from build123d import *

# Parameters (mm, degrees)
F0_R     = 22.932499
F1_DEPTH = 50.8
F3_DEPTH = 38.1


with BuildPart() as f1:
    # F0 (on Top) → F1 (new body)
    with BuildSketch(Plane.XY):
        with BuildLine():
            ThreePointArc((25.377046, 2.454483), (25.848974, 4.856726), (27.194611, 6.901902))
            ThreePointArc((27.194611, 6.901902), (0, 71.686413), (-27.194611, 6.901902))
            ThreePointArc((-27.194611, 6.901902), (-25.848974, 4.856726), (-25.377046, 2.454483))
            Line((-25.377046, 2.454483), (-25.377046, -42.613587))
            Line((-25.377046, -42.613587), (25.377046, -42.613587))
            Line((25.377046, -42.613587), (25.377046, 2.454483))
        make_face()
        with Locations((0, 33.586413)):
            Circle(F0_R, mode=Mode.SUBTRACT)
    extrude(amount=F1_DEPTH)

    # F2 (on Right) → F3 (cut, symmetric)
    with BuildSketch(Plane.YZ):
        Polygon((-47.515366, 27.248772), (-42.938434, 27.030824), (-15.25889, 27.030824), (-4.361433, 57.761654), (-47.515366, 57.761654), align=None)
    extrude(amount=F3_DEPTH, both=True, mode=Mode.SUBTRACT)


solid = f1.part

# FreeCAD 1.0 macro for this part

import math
import FreeCAD as App
import Part
import Sketcher
Q = App.Units.Quantity


def add_polygon(sketch, points):
    """Adds a closed chain of lines whose ends are joined by coincident constraints."""
    first, n = sketch.GeometryCount, len(points)
    for a, b in zip(points, points[1:] + points[:1]):
        sketch.addGeometry(Part.LineSegment(App.Vector(*a, 0), App.Vector(*b, 0)), False)
    for i in range(n):
        sketch.addConstraint(Sketcher.Constraint("Coincident", first + i, 2, first + (i + 1) % n, 1))

doc = App.newDocument("Part")
body = doc.addObject("PartDesign::Body", "Body")

# Sketch on XY plane
sketch1 = body.newObject("Sketcher::SketchObject", "Sketch")
sketch1.AttachmentSupport = (doc.getObject("XY_Plane"), [""])
sketch1.MapMode = "FlatFace"
sketch1.addGeometry([
    Part.ArcOfCircle(Part.Circle(App.Vector(31.727046, 2.454483, 0), App.Vector(0, 0, 1), 6.35), math.radians(135.542427), math.radians(180.000004)),  # 0
    Part.ArcOfCircle(Part.Circle(App.Vector(0, 33.586413, 0), App.Vector(0, 0, 1), 38.1), math.radians(-44.457569), math.radians(224.457569)),  # 1
    Part.ArcOfCircle(Part.Circle(App.Vector(-31.727046, 2.454483, 0), App.Vector(0, 0, 1), 6.35), math.radians(-0.000004), math.radians(44.457573)),  # 2
    Part.LineSegment(App.Vector(-25.377046, 2.454483, 0), App.Vector(-25.377046, -42.613587, 0)),  # 3
    Part.LineSegment(App.Vector(-25.377046, -42.613587, 0), App.Vector(25.377046, -42.613587, 0)),  # 4
    Part.LineSegment(App.Vector(25.377046, -42.613587, 0), App.Vector(25.377046, 2.454483, 0)),  # 5
    Part.Circle(App.Vector(0, 33.586413, 0), App.Vector(0, 0, 1), 22.932499),  # 6
], False)
sketch1.addConstraint([
    Sketcher.Constraint("Tangent", 0, 1, 1, 1),
    Sketcher.Constraint("Tangent", 1, 2, 2, 2),
    Sketcher.Constraint("Tangent", 2, 1, 3, 1),
    Sketcher.Constraint("Coincident", 3, 2, 4, 1),
    Sketcher.Constraint("Coincident", 4, 2, 5, 1),
    Sketcher.Constraint("Tangent", 5, 2, 0, 2),
    Sketcher.Constraint("Vertical", 3),
    Sketcher.Constraint("Horizontal", 4),
    Sketcher.Constraint("Vertical", 5),
    Sketcher.Constraint("Coincident", 6, 3, 1, 3),
    Sketcher.Constraint("Equal", 0, 2),
    Sketcher.Constraint("Symmetric", 0, 3, 2, 3, -2),
    Sketcher.Constraint("Radius", 1, Q("1.5 in")),
    Sketcher.Constraint("Radius", 0, Q("0.25 in")),
    Sketcher.Constraint("Diameter", 6, Q("45.864998 mm")),
    Sketcher.Constraint("DistanceY", 3, 2, 3, 1, Q("45.06807 mm")),
    Sketcher.Constraint("DistanceY", -1, 1, 0, 1, Q("6.901902 mm")),
    Sketcher.Constraint("DistanceX", 4, 1, 4, 2, Q("50.754092 mm")),
])
pad1 = body.newObject("PartDesign::Pad", "Pad")
pad1.Profile = sketch1
pad1.Length = Q("2 in")

# Sketch on YZ plane
sketch2 = body.newObject("Sketcher::SketchObject", "Sketch001")
sketch2.AttachmentSupport = (doc.getObject("YZ_Plane"), [""])
sketch2.MapMode = "FlatFace"
add_polygon(sketch2, [(-47.515366, 27.248772), (-42.938434, 27.030824), (-15.25889, 27.030824), (-4.361433, 57.761654), (-47.515366, 57.761654)])  # lines 0-4
sketch2.addConstraint([
    Sketcher.Constraint("Horizontal", 1),
    Sketcher.Constraint("Horizontal", 3),
    Sketcher.Constraint("Vertical", 4),
    Sketcher.Constraint("DistanceX", 0, 2, 2, 2, Q("38.577001 mm")),
    Sketcher.Constraint("Distance", 0, Q("4.582118 mm")),
    Sketcher.Constraint("DistanceX", 1, 1, 1, 2, Q("27.679544 mm")),
    Sketcher.Constraint("DistanceX", 3, 2, 3, 1, Q("43.153933 mm")),
    Sketcher.Constraint("DistanceY", 4, 2, 4, 1, Q("30.512882 mm")),
    Sketcher.Constraint("DistanceX", 1, 2, -1, 1, Q("15.25889 mm")),
    Sketcher.Constraint("DistanceY", -1, 1, 4, 2, Q("27.248772 mm")),
])
pocket1 = body.newObject("PartDesign::Pocket", "Pocket")
pocket1.Profile = sketch2
pocket1.Length = Q("3 in")
pocket1.Midplane = True

doc.recompute()
